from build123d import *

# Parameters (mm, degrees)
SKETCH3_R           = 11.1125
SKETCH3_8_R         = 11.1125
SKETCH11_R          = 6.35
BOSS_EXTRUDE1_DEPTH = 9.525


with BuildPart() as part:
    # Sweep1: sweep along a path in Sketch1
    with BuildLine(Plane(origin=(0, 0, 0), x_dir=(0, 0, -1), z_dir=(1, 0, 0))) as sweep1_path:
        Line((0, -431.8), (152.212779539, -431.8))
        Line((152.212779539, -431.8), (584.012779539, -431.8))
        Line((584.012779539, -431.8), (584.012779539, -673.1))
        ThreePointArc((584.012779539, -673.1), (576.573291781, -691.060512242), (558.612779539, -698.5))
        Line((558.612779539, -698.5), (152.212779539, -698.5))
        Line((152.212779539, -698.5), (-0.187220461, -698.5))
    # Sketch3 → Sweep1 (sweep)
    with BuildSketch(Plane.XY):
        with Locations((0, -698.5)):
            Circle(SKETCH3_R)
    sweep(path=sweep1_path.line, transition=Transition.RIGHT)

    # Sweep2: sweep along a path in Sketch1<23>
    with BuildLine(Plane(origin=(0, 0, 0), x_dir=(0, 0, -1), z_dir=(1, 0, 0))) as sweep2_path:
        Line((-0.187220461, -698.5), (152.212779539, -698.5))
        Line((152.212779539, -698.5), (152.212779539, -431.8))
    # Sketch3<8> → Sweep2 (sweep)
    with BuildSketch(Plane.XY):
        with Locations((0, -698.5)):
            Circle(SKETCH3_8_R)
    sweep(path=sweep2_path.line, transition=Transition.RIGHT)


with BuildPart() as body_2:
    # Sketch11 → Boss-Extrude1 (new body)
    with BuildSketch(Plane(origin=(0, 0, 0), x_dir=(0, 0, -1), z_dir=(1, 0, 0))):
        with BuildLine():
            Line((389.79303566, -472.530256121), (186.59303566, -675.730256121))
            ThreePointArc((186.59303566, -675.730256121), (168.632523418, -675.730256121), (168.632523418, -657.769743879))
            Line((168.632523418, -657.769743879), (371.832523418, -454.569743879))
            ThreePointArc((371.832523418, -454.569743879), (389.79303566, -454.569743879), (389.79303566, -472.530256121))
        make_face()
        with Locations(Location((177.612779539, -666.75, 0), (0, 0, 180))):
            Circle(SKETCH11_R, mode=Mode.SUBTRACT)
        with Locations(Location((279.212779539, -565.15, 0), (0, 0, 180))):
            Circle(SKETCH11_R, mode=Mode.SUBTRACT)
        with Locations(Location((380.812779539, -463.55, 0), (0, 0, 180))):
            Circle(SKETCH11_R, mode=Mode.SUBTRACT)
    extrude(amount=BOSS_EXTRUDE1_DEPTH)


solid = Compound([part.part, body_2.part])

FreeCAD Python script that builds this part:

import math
import FreeCAD as App
import Part
import Sketcher
from FreeCAD import Vector
Q = App.Units.Quantity

doc = App.newDocument("Part")
body = doc.addObject("PartDesign::Body", "Body")

# Sketch on XY plane
sketch1 = doc.addObject("Sketcher::SketchObject", "Sketch")
body.addObject(sketch1)
sketch1.AttachmentSupport = (doc.XY_Plane, [""])
sketch1.MapMode = "FlatFace"
sketch1.addGeometry(Part.Circle(Vector(0, -698.5, 0), Vector(0, 0, 1), 11.1125), False)
sketch1.addConstraint([
    Sketcher.Constraint("PointOnObject", 0, 3, -2),
    Sketcher.Constraint("Diameter", 0, Q("0.875 in")),
    Sketcher.Constraint("DistanceY", 0, 3, -1, 1, Q("27.5 in")),
])

# Sketch on YZ plane
sketch2 = doc.addObject("Sketcher::SketchObject", "Sketch001")
body.addObject(sketch2)
sketch2.AttachmentSupport = (doc.YZ_Plane, [""])
sketch2.MapMode = "FlatFace"
sketch2.addGeometry([
    Part.LineSegment(Vector(-431.8, 0, 0), Vector(-431.8, -584.01278, 0)),
    Part.LineSegment(Vector(-431.8, -584.01278, 0), Vector(-673.1, -584.01278, 0)),
    Part.ArcOfCircle(Part.Circle(Vector(-673.1, -558.61278, 0), Vector(0, 0, 1), 25.4), math.radians(180), math.radians(270)),
    Part.LineSegment(Vector(-698.5, -558.61278, 0), Vector(-698.5, 0.18722, 0)),
], False)
sketch2.addConstraint([
    Sketcher.Constraint("Coincident", 0, 2, 1, 1),
    Sketcher.Constraint("Tangent", 1, 2, 2, 2),
    Sketcher.Constraint("Tangent", 2, 1, 3, 1),
    Sketcher.Constraint("Vertical", 0),
    Sketcher.Constraint("Horizontal", 1),
    Sketcher.Constraint("Vertical", 3),
    Sketcher.Constraint("PointOnObject", 0, 1, -1),
    Sketcher.Constraint("Radius", 2, Q("1 in")),
    Sketcher.Constraint("DistanceY", 3, 1, 3, 2, Q("22 in")),
    Sketcher.Constraint("DistanceX", 1, 2, 1, 1, Q("9.5 in")),
    Sketcher.Constraint("DistanceX", 0, 1, -1, 1, Q("17 in")),
    Sketcher.Constraint("DistanceY", 0, 2, 0, 1, 584.01278),
])
doc.recompute()

additivepipe = doc.addObject("PartDesign::AdditivePipe", "AdditivePipe")
body.addObject(additivepipe)
additivepipe.Profile = sketch1
additivepipe.Spine = (sketch2, ["Edge1", "Edge2", "Edge3", "Edge4"])
additivepipe.Transition = "Right corner"

# Sketch on XY plane
sketch3 = doc.addObject("Sketcher::SketchObject", "Sketch002")
body.addObject(sketch3)
sketch3.AttachmentSupport = (doc.XY_Plane, [""])
sketch3.MapMode = "FlatFace"
sketch3.addGeometry(Part.Circle(Vector(0, -698.5, 0), Vector(0, 0, 1), 11.1125), False)
sketch3.addConstraint([
    Sketcher.Constraint("PointOnObject", 0, 3, -2),
    Sketcher.Constraint("Diameter", 0, Q("0.875 in")),
    Sketcher.Constraint("DistanceY", 0, 3, -1, 1, Q("27.5 in")),
])

# Sketch on YZ plane
sketch4 = doc.addObject("Sketcher::SketchObject", "Sketch003")
body.addObject(sketch4)
sketch4.AttachmentSupport = (doc.YZ_Plane, [""])
sketch4.MapMode = "FlatFace"
sketch4.addGeometry([
    Part.LineSegment(Vector(-698.5, 0.18722, 0), Vector(-698.5, -152.21278, 0)),
    Part.LineSegment(Vector(-698.5, -152.21278, 0), Vector(-431.8, -152.21278, 0)),
], False)
sketch4.addConstraint([
    Sketcher.Constraint("Coincident", 0, 2, 1, 1),
    Sketcher.Constraint("Vertical", 0),
    Sketcher.Constraint("Horizontal", 1),
    Sketcher.Constraint("DistanceY", 0, 2, 0, 1, Q("6 in")),
    Sketcher.Constraint("DistanceX", 1, 1, 1, 2, Q("10.5 in")),
    Sketcher.Constraint("DistanceX", 1, 2, -1, 1, Q("17 in")),
    Sketcher.Constraint("DistanceY", -1, 1, 0, 1, 0.18722),
])
doc.recompute()

additivepipe2 = doc.addObject("PartDesign::AdditivePipe", "AdditivePipe001")
body.addObject(additivepipe2)
additivepipe2.Profile = sketch3
additivepipe2.Spine = (sketch4, ["Edge1", "Edge2"])
additivepipe2.Transition = "Right corner"
body2 = doc.addObject("PartDesign::Body", "Body001")

# Sketch on YZ plane
sketch5 = doc.addObject("Sketcher::SketchObject", "Sketch004")
body2.addObject(sketch5)
sketch5.AttachmentSupport = (doc.getObject("YZ_Plane001"), [""])
sketch5.MapMode = "FlatFace"
sketch5.addGeometry([
    Part.LineSegment(Vector(-675.730256, -186.593036, 0), Vector(-472.530256, -389.793036, 0)),  # 0
    Part.ArcOfCircle(Part.Circle(Vector(-463.55, -380.81278, 0), Vector(0, 0, 1), 12.7), math.radians(-135), math.radians(45)),  # 1
    Part.LineSegment(Vector(-454.569744, -371.832523, 0), Vector(-657.769744, -168.632523, 0)),  # 2
    Part.ArcOfCircle(Part.Circle(Vector(-666.75, -177.61278, 0), Vector(0, 0, 1), 12.7), math.radians(45), math.radians(225)),  # 3
    Part.Circle(Vector(-666.75, -177.61278, 0), Vector(0, 0, 1), 6.35),  # 4
    Part.Circle(Vector(-463.55, -380.81278, 0), Vector(0, 0, 1), 6.35),  # 5
    Part.Circle(Vector(-565.15, -279.21278, 0), Vector(0, 0, 1), 6.35),  # 6
], False)
sketch5.addConstraint([
    Sketcher.Constraint("Tangent", 0, 2, 1, 1),
    Sketcher.Constraint("Tangent", 1, 2, 2, 1),
    Sketcher.Constraint("Tangent", 2, 2, 3, 1),
    Sketcher.Constraint("Tangent", 3, 2, 0, 1),
    Sketcher.Constraint("Coincident", 4, 3, 3, 3),
    Sketcher.Constraint("Coincident", 5, 3, 1, 3),
    Sketcher.Constraint("Equal", 1, 3),
    Sketcher.Constraint("Equal", 4, 5),
    Sketcher.Constraint("Equal", 5, 6),
    Sketcher.Constraint("Diameter", 4, Q("0.5 in")),
    Sketcher.Constraint("Radius", 1, Q("0.5 in")),
    Sketcher.Constraint("Angle", 0, Q("-45 deg")),
    Sketcher.Constraint("DistanceX", 3, 3, 1, 3, Q("8 in")),
    Sketcher.Constraint("DistanceX", 6, 3, 1, 3, Q("4 in")),
    Sketcher.Constraint("DistanceY", 1, 3, 6, 3, Q("4 in")),
    Sketcher.Constraint("DistanceX", 1, 3, -1, 1, Q("18.25 in")),
    Sketcher.Constraint("DistanceY", 1, 3, -1, 1, 380.81278),
])
pad1 = doc.addObject("PartDesign::Pad", "Pad")
body2.addObject(pad1)
pad1.Profile = sketch5
pad1.Length = Q("0.375 in")

doc.recompute()
